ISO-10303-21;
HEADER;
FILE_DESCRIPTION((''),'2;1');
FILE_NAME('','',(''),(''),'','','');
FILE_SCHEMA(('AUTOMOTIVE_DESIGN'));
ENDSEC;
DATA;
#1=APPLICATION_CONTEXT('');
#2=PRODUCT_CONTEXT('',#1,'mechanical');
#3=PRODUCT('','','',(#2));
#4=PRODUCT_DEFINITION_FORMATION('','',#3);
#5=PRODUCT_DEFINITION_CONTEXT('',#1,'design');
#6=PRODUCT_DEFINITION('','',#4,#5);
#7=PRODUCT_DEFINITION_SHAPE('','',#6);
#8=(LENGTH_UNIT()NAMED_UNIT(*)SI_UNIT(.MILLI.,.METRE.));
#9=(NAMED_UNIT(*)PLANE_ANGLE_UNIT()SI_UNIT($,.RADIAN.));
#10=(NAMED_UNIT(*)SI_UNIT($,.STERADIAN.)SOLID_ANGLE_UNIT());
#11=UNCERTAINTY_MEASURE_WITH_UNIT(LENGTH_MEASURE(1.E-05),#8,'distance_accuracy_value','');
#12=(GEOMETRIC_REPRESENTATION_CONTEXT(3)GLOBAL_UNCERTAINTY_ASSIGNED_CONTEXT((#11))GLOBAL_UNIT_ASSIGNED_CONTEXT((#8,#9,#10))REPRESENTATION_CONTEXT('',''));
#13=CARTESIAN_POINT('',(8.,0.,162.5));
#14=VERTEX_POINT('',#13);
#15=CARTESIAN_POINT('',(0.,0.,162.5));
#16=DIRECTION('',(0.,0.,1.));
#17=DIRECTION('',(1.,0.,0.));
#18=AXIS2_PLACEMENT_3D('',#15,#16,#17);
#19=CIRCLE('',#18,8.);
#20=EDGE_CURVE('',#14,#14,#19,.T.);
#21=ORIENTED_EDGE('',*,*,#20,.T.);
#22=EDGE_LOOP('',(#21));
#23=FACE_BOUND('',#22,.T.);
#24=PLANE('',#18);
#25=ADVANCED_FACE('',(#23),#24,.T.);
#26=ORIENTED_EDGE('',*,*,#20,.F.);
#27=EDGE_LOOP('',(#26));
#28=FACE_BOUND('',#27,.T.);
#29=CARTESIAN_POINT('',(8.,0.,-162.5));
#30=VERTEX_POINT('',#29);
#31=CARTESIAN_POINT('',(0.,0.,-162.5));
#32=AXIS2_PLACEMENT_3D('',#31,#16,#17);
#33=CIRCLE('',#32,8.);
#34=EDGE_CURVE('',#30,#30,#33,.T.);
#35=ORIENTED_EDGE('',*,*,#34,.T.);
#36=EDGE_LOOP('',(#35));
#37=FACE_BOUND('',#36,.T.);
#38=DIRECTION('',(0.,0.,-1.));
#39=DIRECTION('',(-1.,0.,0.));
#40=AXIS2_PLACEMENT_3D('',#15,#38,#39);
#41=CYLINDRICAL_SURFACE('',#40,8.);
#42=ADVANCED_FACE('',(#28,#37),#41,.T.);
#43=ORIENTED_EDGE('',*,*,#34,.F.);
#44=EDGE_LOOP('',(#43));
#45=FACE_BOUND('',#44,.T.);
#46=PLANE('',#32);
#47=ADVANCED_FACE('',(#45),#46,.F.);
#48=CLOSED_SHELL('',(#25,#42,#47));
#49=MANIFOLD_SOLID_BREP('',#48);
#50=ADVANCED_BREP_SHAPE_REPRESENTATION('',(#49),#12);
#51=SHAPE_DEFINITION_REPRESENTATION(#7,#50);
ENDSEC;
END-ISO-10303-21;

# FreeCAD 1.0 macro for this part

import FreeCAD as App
import Part
import Sketcher

V = App.Vector

doc = App.newDocument("Part")
body = doc.addObject("PartDesign::Body", "Body")

sketch1 = doc.addObject("Sketcher::SketchObject", "Sketch")
body.addObject(sketch1)
sketch1.AttachmentSupport = (doc.XY_Plane, [""])
sketch1.MapMode = "FlatFace"
sketch1.addGeometry(Part.Circle(V(0, 0, 0), V(0, 0, 1), 8), False)
sketch1.addConstraint([
    Sketcher.Constraint("Coincident", 0, 3, -1, 1),
    Sketcher.Constraint("Diameter", 0, 16.0),
])
pad1 = doc.addObject("PartDesign::Pad", "Pad")
body.addObject(pad1)
pad1.Profile = sketch1
pad1.Length = 325
pad1.Midplane = True

doc.recompute()
